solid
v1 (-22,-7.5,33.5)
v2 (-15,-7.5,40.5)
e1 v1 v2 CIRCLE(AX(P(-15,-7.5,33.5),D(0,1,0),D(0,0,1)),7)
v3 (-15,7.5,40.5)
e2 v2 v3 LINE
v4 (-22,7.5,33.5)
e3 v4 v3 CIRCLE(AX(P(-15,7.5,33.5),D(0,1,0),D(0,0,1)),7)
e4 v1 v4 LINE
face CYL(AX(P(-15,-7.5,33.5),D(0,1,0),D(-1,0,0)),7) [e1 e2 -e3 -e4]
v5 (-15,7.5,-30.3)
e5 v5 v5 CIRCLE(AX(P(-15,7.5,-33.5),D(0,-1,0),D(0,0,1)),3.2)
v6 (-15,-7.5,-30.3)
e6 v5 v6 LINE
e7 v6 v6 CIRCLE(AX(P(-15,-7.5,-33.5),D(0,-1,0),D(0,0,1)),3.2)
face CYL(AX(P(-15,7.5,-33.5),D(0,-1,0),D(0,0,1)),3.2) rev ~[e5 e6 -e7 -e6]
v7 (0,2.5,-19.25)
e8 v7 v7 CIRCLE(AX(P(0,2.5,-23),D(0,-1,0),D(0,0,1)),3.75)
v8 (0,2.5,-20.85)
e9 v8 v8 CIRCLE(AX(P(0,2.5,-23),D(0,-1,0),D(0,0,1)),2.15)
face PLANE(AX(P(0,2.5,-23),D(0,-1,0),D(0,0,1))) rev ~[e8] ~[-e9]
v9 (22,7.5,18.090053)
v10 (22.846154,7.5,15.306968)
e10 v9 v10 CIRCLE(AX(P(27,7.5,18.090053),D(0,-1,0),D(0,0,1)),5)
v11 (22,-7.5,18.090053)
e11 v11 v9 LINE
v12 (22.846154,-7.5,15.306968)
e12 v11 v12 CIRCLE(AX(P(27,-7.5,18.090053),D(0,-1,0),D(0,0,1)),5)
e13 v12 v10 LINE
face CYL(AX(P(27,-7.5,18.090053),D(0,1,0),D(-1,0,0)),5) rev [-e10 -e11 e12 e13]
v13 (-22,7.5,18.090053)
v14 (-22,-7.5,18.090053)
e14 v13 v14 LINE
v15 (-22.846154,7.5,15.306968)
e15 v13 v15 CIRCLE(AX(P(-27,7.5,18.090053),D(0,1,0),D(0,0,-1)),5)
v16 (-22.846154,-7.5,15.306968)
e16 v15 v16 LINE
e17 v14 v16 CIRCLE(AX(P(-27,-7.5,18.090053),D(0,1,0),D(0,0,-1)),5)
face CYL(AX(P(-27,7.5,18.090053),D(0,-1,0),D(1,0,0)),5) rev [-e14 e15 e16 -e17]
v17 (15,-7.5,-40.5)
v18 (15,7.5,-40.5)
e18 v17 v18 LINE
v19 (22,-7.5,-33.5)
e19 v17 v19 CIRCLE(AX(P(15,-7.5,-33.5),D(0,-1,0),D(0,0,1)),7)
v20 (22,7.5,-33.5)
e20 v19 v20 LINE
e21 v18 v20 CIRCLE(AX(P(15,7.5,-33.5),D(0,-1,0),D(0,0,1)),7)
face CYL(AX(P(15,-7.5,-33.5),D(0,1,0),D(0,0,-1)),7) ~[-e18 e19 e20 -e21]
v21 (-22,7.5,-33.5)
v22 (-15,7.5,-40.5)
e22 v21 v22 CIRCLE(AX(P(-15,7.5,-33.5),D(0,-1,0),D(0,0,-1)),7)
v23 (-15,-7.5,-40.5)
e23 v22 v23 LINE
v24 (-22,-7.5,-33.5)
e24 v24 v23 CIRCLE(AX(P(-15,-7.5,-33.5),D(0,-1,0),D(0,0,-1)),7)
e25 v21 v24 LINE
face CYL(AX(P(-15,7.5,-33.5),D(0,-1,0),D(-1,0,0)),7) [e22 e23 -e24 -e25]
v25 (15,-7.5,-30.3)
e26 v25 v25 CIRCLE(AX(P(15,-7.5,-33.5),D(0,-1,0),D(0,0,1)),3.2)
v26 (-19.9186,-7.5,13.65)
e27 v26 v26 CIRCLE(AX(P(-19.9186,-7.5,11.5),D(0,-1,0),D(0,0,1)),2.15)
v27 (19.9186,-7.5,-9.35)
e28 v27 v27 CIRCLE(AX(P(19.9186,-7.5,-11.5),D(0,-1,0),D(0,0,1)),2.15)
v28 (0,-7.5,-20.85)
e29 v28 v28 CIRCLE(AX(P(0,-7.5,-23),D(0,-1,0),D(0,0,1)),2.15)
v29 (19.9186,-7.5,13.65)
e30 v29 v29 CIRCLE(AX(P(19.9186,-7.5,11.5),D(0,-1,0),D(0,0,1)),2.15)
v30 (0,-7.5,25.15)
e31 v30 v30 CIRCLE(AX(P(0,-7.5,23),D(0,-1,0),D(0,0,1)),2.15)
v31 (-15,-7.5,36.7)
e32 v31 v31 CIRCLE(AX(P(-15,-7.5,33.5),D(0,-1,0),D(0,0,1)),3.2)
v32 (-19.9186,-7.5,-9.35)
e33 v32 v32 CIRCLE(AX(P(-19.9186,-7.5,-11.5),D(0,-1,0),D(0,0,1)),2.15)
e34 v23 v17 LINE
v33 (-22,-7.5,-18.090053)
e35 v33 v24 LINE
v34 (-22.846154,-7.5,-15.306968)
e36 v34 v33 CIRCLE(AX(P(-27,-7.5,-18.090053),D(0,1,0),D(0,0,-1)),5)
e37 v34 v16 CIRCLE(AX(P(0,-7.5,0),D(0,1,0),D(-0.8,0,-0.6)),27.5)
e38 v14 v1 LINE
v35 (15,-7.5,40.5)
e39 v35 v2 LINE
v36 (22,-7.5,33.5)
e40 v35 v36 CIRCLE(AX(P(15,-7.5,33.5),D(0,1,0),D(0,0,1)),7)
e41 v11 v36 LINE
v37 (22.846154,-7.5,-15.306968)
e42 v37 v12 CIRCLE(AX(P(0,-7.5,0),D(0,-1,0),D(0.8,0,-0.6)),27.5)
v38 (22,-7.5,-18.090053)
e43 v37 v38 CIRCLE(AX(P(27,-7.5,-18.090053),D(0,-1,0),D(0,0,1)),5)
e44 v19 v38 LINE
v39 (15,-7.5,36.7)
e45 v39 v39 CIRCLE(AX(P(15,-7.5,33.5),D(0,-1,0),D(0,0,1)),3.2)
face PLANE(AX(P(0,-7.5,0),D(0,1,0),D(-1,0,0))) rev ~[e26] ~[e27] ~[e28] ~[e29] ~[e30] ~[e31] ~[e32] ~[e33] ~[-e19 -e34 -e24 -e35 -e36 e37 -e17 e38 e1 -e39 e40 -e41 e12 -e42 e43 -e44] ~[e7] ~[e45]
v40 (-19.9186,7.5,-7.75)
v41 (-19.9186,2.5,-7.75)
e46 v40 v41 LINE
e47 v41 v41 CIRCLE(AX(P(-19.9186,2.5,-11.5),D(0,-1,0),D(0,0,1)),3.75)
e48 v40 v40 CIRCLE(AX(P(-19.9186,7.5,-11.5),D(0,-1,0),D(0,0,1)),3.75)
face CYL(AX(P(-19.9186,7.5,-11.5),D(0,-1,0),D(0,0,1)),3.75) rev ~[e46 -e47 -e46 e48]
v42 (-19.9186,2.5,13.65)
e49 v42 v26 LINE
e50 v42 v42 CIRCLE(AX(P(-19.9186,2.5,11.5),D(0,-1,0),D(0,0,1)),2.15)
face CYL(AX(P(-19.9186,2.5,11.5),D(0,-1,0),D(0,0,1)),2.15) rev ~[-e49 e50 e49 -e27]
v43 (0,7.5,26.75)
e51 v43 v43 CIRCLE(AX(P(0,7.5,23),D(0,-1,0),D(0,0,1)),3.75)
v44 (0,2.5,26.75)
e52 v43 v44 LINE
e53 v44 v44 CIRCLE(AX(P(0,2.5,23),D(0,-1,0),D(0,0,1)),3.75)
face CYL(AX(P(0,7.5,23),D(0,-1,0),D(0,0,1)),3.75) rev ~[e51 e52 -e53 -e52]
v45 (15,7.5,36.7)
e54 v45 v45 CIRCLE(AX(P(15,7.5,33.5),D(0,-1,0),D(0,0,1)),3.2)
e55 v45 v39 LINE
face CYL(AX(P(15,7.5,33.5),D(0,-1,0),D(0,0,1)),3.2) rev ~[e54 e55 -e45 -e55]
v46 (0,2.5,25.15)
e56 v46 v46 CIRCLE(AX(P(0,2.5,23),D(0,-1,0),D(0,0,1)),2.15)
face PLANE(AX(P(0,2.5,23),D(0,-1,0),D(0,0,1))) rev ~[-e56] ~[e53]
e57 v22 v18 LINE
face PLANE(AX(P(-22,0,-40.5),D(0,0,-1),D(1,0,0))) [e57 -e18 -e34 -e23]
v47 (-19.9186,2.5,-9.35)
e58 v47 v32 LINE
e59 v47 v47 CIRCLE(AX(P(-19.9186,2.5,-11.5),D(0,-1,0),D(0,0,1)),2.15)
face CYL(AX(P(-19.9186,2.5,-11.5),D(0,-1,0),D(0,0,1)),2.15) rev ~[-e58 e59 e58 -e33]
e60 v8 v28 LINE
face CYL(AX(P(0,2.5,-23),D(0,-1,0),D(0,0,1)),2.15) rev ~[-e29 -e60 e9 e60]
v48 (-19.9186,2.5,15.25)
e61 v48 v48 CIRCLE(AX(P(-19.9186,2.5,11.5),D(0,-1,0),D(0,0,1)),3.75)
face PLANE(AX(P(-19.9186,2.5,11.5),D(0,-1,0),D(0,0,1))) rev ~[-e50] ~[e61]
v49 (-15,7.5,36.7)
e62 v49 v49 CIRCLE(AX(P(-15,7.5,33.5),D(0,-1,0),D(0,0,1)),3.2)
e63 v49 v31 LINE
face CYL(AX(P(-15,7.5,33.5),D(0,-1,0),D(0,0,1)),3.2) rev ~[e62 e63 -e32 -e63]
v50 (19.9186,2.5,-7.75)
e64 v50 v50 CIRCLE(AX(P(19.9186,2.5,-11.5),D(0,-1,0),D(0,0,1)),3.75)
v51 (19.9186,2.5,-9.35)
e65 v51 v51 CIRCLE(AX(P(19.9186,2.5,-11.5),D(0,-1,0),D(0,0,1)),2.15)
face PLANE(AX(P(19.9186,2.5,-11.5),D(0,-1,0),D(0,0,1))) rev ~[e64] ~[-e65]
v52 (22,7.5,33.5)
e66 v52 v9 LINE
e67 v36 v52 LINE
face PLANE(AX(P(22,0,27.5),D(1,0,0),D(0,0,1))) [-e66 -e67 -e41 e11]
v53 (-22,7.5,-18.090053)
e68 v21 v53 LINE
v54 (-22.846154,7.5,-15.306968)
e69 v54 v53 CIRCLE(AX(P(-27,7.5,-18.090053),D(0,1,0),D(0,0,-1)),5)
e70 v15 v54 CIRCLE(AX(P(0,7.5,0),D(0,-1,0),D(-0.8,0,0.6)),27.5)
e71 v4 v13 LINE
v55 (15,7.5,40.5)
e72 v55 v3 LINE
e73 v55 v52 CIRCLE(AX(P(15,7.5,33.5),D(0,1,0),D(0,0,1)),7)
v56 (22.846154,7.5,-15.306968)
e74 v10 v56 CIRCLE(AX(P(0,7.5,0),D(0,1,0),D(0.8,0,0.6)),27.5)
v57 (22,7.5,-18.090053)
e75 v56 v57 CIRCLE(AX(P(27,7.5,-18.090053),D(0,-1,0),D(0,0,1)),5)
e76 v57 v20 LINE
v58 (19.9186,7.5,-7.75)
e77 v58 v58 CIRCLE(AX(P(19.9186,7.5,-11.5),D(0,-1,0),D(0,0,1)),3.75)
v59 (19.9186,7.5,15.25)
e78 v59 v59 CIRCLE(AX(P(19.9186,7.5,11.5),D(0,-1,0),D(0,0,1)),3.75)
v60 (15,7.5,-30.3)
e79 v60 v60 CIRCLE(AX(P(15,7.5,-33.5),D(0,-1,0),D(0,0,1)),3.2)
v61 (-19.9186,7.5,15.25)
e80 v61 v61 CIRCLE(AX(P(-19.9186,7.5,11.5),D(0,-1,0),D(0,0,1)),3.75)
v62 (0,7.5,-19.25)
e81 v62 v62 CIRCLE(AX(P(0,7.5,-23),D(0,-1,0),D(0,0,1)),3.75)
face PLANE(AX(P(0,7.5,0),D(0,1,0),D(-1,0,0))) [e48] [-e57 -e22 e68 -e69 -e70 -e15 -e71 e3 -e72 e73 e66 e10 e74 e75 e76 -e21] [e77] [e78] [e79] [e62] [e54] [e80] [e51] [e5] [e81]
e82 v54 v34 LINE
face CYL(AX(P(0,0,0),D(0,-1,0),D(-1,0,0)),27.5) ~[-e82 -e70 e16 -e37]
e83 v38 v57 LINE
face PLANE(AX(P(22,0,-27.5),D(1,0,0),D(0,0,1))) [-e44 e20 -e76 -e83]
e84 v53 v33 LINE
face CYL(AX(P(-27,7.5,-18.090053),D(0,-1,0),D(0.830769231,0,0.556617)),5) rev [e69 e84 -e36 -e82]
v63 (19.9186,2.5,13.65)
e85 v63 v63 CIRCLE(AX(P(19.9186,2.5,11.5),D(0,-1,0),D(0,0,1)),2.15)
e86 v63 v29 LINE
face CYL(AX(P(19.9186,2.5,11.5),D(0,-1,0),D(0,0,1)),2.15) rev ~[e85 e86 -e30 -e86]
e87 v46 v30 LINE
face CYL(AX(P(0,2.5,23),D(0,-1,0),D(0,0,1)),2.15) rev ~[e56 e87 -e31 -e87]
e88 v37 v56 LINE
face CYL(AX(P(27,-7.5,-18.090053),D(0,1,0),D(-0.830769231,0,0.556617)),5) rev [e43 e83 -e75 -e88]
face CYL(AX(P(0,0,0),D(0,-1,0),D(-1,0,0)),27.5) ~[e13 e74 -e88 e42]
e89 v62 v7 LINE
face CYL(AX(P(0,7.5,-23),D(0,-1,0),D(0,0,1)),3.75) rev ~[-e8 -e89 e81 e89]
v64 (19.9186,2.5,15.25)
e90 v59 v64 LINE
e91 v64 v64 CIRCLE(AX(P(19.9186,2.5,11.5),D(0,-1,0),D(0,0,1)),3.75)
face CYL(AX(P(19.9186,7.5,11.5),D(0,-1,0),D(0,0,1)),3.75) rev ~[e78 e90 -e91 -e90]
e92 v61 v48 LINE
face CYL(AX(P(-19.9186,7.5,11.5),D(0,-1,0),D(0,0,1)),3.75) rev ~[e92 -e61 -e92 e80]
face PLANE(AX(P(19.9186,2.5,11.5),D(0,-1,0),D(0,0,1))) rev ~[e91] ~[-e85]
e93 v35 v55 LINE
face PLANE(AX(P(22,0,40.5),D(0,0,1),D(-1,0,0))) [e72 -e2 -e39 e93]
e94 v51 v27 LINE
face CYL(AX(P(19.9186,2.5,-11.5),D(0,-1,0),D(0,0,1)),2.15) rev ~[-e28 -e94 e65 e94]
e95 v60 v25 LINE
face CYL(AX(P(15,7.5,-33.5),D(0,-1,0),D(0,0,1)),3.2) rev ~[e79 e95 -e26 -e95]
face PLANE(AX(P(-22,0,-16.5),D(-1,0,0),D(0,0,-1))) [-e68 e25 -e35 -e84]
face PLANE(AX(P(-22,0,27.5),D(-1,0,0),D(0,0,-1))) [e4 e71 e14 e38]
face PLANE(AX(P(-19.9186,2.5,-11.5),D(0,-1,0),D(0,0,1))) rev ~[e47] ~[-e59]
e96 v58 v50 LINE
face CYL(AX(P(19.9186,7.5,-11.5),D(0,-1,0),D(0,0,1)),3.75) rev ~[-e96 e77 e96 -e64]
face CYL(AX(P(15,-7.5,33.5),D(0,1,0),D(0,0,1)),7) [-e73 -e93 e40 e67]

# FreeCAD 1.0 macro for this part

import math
import FreeCAD as App
import Part
import Sketcher
from FreeCAD import Vector


def edges_at(feature, points):
    """Names of the edges that pass closest to the given points."""
    edges = feature.Shape.Edges
    near = lambda p: min(range(len(edges)), key=lambda i: edges[i].distToShape(Part.Vertex(*p))[0])
    return sorted({f"Edge{near(p) + 1}" for p in points})

doc = App.newDocument("Part")
params = doc.addObject("Spreadsheet::Sheet", "Params")
for row, (alias, value) in enumerate([
    ("sketch1_radius", "27.5 mm"),
    ("sketch1_width", "44 mm"),
    ("sketch1_height", "24 mm"),
    ("pad1_length", "15 mm"),
    ("sketch2_diameter", "6.4 mm"),
    ("hole_diameter", "6.4 mm"),
    ("sketch3_diameter", "4.3 mm"),
    ("hole2_diameter", "4.3 mm"),
    ("hole2_cbore_diameter", "7.5 mm"),
    ("hole2_cbore_depth", "5 mm"),
    ("fillet_radius", "7 mm"),
    ("fillet2_radius", "5 mm"),
], start=1):
    params.set(f"A{row}", alias)
    params.set(f"B{row}", "=" + value)
    params.setAlias(f"B{row}", alias)

body = doc.addObject("PartDesign::Body", "Body")

sketch1 = body.newObject("Sketcher::SketchObject", "Sketch")
sketch1.AttachmentSupport = (doc.getObject("XZ_Plane"), [""])
sketch1.MapMode = "FlatFace"
sketch1.addGeometry(Part.LineSegment(Vector(-22, 16, 0), Vector(-22, 40, 0)), False)
sketch1.addGeometry(Part.LineSegment(Vector(-22, 40, 0), Vector(22, 40, 0)), False)
sketch1.addGeometry(Part.LineSegment(Vector(22, 40, 0), Vector(22, 16, 0)), False)
sketch1.addGeometry(Part.ArcOfCircle(Part.Circle(Vector(0, 0, 0), Vector(0, 0, 1), 28), math.radians(-37), math.radians(37)), False)
sketch1.addGeometry(Part.LineSegment(Vector(22, -16, 0), Vector(22, -40, 0)), False)
sketch1.addGeometry(Part.LineSegment(Vector(22, -40, 0), Vector(-22, -40, 0)), False)
sketch1.addGeometry(Part.LineSegment(Vector(-22, -40, 0), Vector(-22, -16, 0)), False)
sketch1.addGeometry(Part.ArcOfCircle(Part.Circle(Vector(0, 0, 0), Vector(0, 0, 1), 28), math.radians(143), math.radians(217)), False)
sketch1.addConstraint(Sketcher.Constraint("Coincident", 0, 2, 1, 1))
sketch1.addConstraint(Sketcher.Constraint("Coincident", 1, 2, 2, 1))
sketch1.addConstraint(Sketcher.Constraint("Coincident", 2, 2, 3, 2))
sketch1.addConstraint(Sketcher.Constraint("Coincident", 3, 1, 4, 1))
sketch1.addConstraint(Sketcher.Constraint("Coincident", 4, 2, 5, 1))
sketch1.addConstraint(Sketcher.Constraint("Coincident", 5, 2, 6, 1))
sketch1.addConstraint(Sketcher.Constraint("Coincident", 6, 2, 7, 2))
sketch1.addConstraint(Sketcher.Constraint("Coincident", 7, 1, 0, 1))
sketch1.addConstraint(Sketcher.Constraint("Vertical", 0))
sketch1.addConstraint(Sketcher.Constraint("Horizontal", 1))
sketch1.addConstraint(Sketcher.Constraint("Vertical", 2))
sketch1.addConstraint(Sketcher.Constraint("Vertical", 4))
sketch1.addConstraint(Sketcher.Constraint("Horizontal", 5))
sketch1.addConstraint(Sketcher.Constraint("Vertical", 6))
sketch1.addConstraint(Sketcher.Constraint("Coincident", 3, 3, -1, 1))
sketch1.addConstraint(Sketcher.Constraint("Coincident", 7, 3, -1, 1))
sketch1.addConstraint(Sketcher.Constraint("Equal", 3, 7))
sketch1.addConstraint(Sketcher.Constraint("Symmetric", 0, 2, 4, 2, -1, 1))
sketch1.addConstraint(Sketcher.Constraint("Horizontal", 3, 1, 6, 2))
sketch1.addConstraint(Sketcher.Constraint("Horizontal", 2, 2, 7, 1))
sketch1.addConstraint(Sketcher.Constraint("Radius", 3, 27.5))
sketch1.addConstraint(Sketcher.Constraint("DistanceX", 1, 1, 1, 2, 44.0))
sketch1.addConstraint(Sketcher.Constraint("DistanceY", 0, 1, 0, 2, 24.0))
sketch1.setExpression("Constraints[20]", "Params.sketch1_radius")
sketch1.setExpression("Constraints[21]", "Params.sketch1_width")
sketch1.setExpression("Constraints[22]", "Params.sketch1_height")
pad1 = body.newObject("PartDesign::Pad", "Pad")
pad1.Profile = sketch1
pad1.setExpression("Length", "Params.pad1_length")
pad1.Midplane = True

sketch2 = body.newObject("Sketcher::SketchObject", "Sketch001")
sketch2.AttachmentSupport = (doc.getObject("XZ_Plane"), [""])
sketch2.MapMode = "FlatFace"
sketch2.AttachmentOffset = App.Placement(Vector(0, 0, -7.5), App.Rotation())
sketch2.addGeometry(Part.Circle(Vector(-15, 33.5, 0), Vector(0, 0, 1), 3.2), False)
sketch2.addGeometry(Part.Circle(Vector(15, 33.5, 0), Vector(0, 0, 1), 3.2), False)
sketch2.addGeometry(Part.Circle(Vector(15, -33.5, 0), Vector(0, 0, 1), 3.2), False)
sketch2.addGeometry(Part.Circle(Vector(-15, -33.5, 0), Vector(0, 0, 1), 3.2), False)
sketch2.addConstraint(Sketcher.Constraint("Equal", 0, 1))
sketch2.addConstraint(Sketcher.Constraint("Equal", 1, 2))
sketch2.addConstraint(Sketcher.Constraint("Equal", 2, 3))
sketch2.addConstraint(Sketcher.Constraint("Symmetric", 0, 3, 2, 3, -1, 1))
sketch2.addConstraint(Sketcher.Constraint("Symmetric", 1, 3, 3, 3, -1, 1))
sketch2.addConstraint(Sketcher.Constraint("Symmetric", 0, 3, 1, 3, -2))
sketch2.addConstraint(Sketcher.Constraint("Diameter", 0, 6.4))
sketch2.addConstraint(Sketcher.Constraint("DistanceX", 0, 3, -1, 1, 15.0))
sketch2.addConstraint(Sketcher.Constraint("DistanceY", 2, 3, 1, 3, 67.0))
sketch2.setExpression("Constraints[6]", "Params.sketch2_diameter")
doc.recompute()
hole = body.newObject("PartDesign::Hole", "Hole")
hole.Profile = sketch2
hole.ThreadType = "None"
hole.setExpression("Diameter", "Params.hole_diameter")
hole.DepthType = "ThroughAll"
hole.Reversed = True

sketch3 = body.newObject("Sketcher::SketchObject", "Sketch002")
sketch3.AttachmentSupport = (doc.getObject("XZ_Plane"), [""])
sketch3.MapMode = "FlatFace"
sketch3.AttachmentOffset = App.Placement(Vector(0, 0, -7.5), App.Rotation())
sketch3.addGeometry(Part.Circle(Vector(19.9, -11.5, 0), Vector(0, 0, 1), 2.1), False)
sketch3.addGeometry(Part.Circle(Vector(19.9, 11.5, 0), Vector(0, 0, 1), 2.1), False)
sketch3.addGeometry(Part.Circle(Vector(0, 23, 0), Vector(0, 0, 1), 2.1), False)
sketch3.addGeometry(Part.Circle(Vector(-19.9, 11.5, 0), Vector(0, 0, 1), 2.1), False)
sketch3.addGeometry(Part.Circle(Vector(-19.9, -11.5, 0), Vector(0, 0, 1), 2.1), False)
sketch3.addGeometry(Part.Circle(Vector(0, -23, 0), Vector(0, 0, 1), 2.1), False)
sketch3.addConstraint(Sketcher.Constraint("Equal", 0, 1))
sketch3.addConstraint(Sketcher.Constraint("Equal", 1, 2))
sketch3.addConstraint(Sketcher.Constraint("Equal", 2, 3))
sketch3.addConstraint(Sketcher.Constraint("Equal", 3, 4))
sketch3.addConstraint(Sketcher.Constraint("Equal", 4, 5))
sketch3.addConstraint(Sketcher.Constraint("Symmetric", 0, 3, 3, 3, -1, 1))
sketch3.addConstraint(Sketcher.Constraint("Symmetric", 1, 3, 4, 3, -1, 1))
sketch3.addConstraint(Sketcher.Constraint("Symmetric", 2, 3, 5, 3, -1, 1))
sketch3.addConstraint(Sketcher.Constraint("Symmetric", 1, 3, 3, 3, -2))
sketch3.addConstraint(Sketcher.Constraint("PointOnObject", 2, 3, -2))
sketch3.addConstraint(Sketcher.Constraint("Diameter", 0, 4.3))
sketch3.addConstraint(Sketcher.Constraint("DistanceY", -1, 1, 2, 3, 23.0))
sketch3.addConstraint(Sketcher.Constraint("DistanceY", 0, 3, 1, 3, 23.0))
sketch3.addConstraint(Sketcher.Constraint("DistanceX", -1, 1, 0, 3, 19.9186))
sketch3.setExpression("Constraints[10]", "Params.sketch3_diameter")
doc.recompute()
hole2 = body.newObject("PartDesign::Hole", "Hole001")
hole2.Profile = sketch3
hole2.ThreadType = "None"
hole2.setExpression("Diameter", "Params.hole2_diameter")
hole2.DepthType = "ThroughAll"
hole2.HoleCutType = "Counterbore"
hole2.setExpression("HoleCutDiameter", "Params.hole2_cbore_diameter")
hole2.setExpression("HoleCutDepth", "Params.hole2_cbore_depth")
hole2.Reversed = True
doc.recompute()

fillet = body.newObject("PartDesign::Fillet", "Fillet")
fillet.Base = (hole2, edges_at(hole2, [
    (-22, 0, 40.5),
    (22, 0, 40.5),
    (22, 0, -40.5),
    (-22, 0, -40.5),
]))
fillet.setExpression("Radius", "Params.fillet_radius")
doc.recompute()

fillet2 = body.newObject("PartDesign::Fillet", "Fillet001")
fillet2.Base = (fillet, edges_at(fillet, [
    (-22, 0, -16.5),
    (-22, 0, 16.5),
    (22, 0, -16.5),
    (22, 0, 16.5),
]))
fillet2.setExpression("Radius", "Params.fillet2_radius")

doc.recompute()
